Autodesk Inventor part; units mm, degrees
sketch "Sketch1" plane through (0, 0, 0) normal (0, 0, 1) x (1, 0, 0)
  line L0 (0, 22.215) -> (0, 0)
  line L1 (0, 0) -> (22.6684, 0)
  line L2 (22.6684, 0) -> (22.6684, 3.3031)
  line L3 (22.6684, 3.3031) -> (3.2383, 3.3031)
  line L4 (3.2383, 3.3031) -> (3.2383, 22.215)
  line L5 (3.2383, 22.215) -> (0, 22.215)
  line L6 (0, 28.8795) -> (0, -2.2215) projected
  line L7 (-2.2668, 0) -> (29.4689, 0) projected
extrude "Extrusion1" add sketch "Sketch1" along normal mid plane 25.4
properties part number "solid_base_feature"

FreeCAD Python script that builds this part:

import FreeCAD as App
import Part
import Sketcher

V = App.Vector
Q = App.Units.Quantity

doc = App.newDocument("Part")
body = doc.addObject("PartDesign::Body", "Body")

# Sketch on XY plane
sketch1 = body.newObject("Sketcher::SketchObject", "Sketch")
sketch1.AttachmentSupport = (doc.getObject("XY_Plane"), [""])
sketch1.MapMode = "FlatFace"
sketch1.addGeometry([
    Part.LineSegment(V(3.2383, 22.215, 0), V(0, 22.215, 0)),  # 0
    Part.LineSegment(V(0, 22.215, 0), V(0, 0, 0)),  # 1
    Part.LineSegment(V(0, 0, 0), V(22.6684, 0, 0)),  # 2
    Part.LineSegment(V(22.6684, 0, 0), V(22.6684, 3.3031, 0)),  # 3
    Part.LineSegment(V(22.6684, 3.3031, 0), V(3.2383, 3.3031, 0)),  # 4
    Part.LineSegment(V(3.2383, 3.3031, 0), V(3.2383, 22.215, 0)),  # 5
], False)
sketch1.addConstraint([
    Sketcher.Constraint("Coincident", 0, 2, 1, 1),
    Sketcher.Constraint("Coincident", 1, 2, 2, 1),
    Sketcher.Constraint("Coincident", 2, 2, 3, 1),
    Sketcher.Constraint("Coincident", 3, 2, 4, 1),
    Sketcher.Constraint("Coincident", 4, 2, 5, 1),
    Sketcher.Constraint("Coincident", 5, 2, 0, 1),
    Sketcher.Constraint("Horizontal", 0),
    Sketcher.Constraint("Vertical", 1),
    Sketcher.Constraint("Horizontal", 2),
    Sketcher.Constraint("Vertical", 3),
    Sketcher.Constraint("Horizontal", 4),
    Sketcher.Constraint("Vertical", 5),
    Sketcher.Constraint("Coincident", 1, 2, -1, 1),
    Sketcher.Constraint("DistanceX", 0, 2, 0, 1, Q("0.1275 in")),
    Sketcher.Constraint("DistanceY", 1, 2, 1, 1, Q("0.8746 in")),
    Sketcher.Constraint("DistanceX", 2, 1, 2, 2, 22.6684),
    Sketcher.Constraint("DistanceY", 3, 1, 3, 2, 3.303),
])
pad1 = body.newObject("PartDesign::Pad", "Pad")
pad1.Profile = sketch1
pad1.Length = Q("1 in")
pad1.Midplane = True

doc.recompute()
